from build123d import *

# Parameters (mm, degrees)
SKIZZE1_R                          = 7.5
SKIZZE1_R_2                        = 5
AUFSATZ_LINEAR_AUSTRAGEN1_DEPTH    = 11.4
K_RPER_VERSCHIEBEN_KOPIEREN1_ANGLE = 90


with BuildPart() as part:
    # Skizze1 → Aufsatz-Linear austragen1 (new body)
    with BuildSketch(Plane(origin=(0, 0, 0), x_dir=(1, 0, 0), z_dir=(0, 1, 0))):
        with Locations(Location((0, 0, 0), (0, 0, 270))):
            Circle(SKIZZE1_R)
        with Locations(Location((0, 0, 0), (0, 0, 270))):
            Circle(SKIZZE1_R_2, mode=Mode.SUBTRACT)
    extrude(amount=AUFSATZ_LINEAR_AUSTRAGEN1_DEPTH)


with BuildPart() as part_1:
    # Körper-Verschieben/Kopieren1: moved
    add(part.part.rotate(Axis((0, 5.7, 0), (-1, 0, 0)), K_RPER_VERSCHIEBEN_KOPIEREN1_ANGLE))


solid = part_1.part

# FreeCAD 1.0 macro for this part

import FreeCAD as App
import Part
import Sketcher
Q = App.Units.Quantity

doc = App.newDocument("Part")
body = doc.addObject("PartDesign::Body", "Body")

# Sketch on XZ plane
sketch1 = body.newObject("Sketcher::SketchObject", "Sketch")
sketch1.AttachmentSupport = (doc.getObject("XZ_Plane"), [""])
sketch1.MapMode = "FlatFace"
sketch1.addGeometry(Part.Circle(App.Vector(0, 0, 0), App.Vector(0, 0, 1), 8), False)
sketch1.addGeometry(Part.Circle(App.Vector(0, 0, 0), App.Vector(0, 0, 1), 5), False)
sketch1.addConstraint(Sketcher.Constraint("Coincident", 0, 3, -1, 1))
sketch1.addConstraint(Sketcher.Constraint("Coincident", 1, 3, -1, 1))
sketch1.addConstraint(Sketcher.Constraint("Diameter", 0, Q("15 mm")))
sketch1.addConstraint(Sketcher.Constraint("Diameter", 1, Q("10 mm")))
pad1 = body.newObject("PartDesign::Pad", "Pad")
pad1.Profile = sketch1
pad1.Length = 11.4
pad1.Reversed = True
body2 = doc.addObject("PartDesign::Body", "Body001")
doc.recompute()

body.Placement = App.Placement(App.Vector(0, 5.7, 5.7), App.Rotation(App.Vector(-1, 0, 0), 90))
boolean = body2.newObject("PartDesign::Boolean", "Boolean")
boolean.Type = "Fuse"
boolean.addObjects([body])

doc.recompute()
